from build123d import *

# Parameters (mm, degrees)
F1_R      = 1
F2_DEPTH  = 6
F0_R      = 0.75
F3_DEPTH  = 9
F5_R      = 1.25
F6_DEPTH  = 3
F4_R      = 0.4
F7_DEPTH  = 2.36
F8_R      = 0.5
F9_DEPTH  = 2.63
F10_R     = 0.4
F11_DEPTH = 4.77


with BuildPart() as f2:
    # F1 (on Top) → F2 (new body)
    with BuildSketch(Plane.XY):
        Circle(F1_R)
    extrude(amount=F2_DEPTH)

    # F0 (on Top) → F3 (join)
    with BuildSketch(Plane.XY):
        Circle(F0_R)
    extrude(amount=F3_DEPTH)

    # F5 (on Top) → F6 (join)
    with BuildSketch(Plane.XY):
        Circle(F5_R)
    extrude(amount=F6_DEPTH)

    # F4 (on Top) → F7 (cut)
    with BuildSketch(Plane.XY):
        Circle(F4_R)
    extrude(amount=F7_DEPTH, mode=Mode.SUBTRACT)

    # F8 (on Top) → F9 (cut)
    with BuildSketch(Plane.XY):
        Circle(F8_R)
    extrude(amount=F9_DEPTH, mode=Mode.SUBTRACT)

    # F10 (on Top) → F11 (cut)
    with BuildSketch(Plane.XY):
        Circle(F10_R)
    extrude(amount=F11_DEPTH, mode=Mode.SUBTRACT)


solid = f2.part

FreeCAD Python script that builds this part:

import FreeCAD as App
import Part
import Sketcher

doc = App.newDocument("Part")
params = doc.addObject("Spreadsheet::Sheet", "Params")
for row, (alias, value) in enumerate([
    ("sketch1_diameter", "2 mm"),
    ("pad1_length", "6 mm"),
    ("sketch2_diameter", "1.5 mm"),
    ("pad2_length", "9 mm"),
    ("sketch3_diameter", "2.5 mm"),
    ("pad3_length", "3 mm"),
    ("sketch4_diameter", "0.8 mm"),
    ("pocket1_length", "2.36 mm"),
    ("sketch5_diameter", "1 mm"),
    ("pocket2_length", "2.63 mm"),
    ("sketch6_diameter", "0.8 mm"),
    ("pocket3_length", "4.77 mm"),
], start=1):
    params.set(f"A{row}", alias)
    params.set(f"B{row}", "=" + value)
    params.setAlias(f"B{row}", alias)

body = doc.addObject("PartDesign::Body", "Body")

# Sketch on XY plane
sketch1 = doc.addObject("Sketcher::SketchObject", "Sketch")
body.addObject(sketch1)
sketch1.AttachmentSupport = (doc.XY_Plane, [""])
sketch1.MapMode = "FlatFace"
sketch1.addGeometry(Part.Circle(App.Vector(0, 0, 0), App.Vector(0, 0, 1), 1), False)
sketch1.addConstraint(Sketcher.Constraint("Coincident", 0, 3, -1, 1))
sketch1.addConstraint(Sketcher.Constraint("Diameter", 0, 2.0))
sketch1.setExpression("Constraints[1]", "Params.sketch1_diameter")
pad1 = doc.addObject("PartDesign::Pad", "Pad")
body.addObject(pad1)
pad1.Profile = sketch1
pad1.setExpression("Length", "Params.pad1_length")

# Sketch on XY plane
sketch2 = doc.addObject("Sketcher::SketchObject", "Sketch001")
body.addObject(sketch2)
sketch2.AttachmentSupport = (doc.XY_Plane, [""])
sketch2.MapMode = "FlatFace"
sketch2.addGeometry(Part.Circle(App.Vector(0, 0, 0), App.Vector(0, 0, 1), 0.8), False)
sketch2.addConstraint(Sketcher.Constraint("Coincident", 0, 3, -1, 1))
sketch2.addConstraint(Sketcher.Constraint("Diameter", 0, 1.5))
sketch2.setExpression("Constraints[1]", "Params.sketch2_diameter")
pad2 = doc.addObject("PartDesign::Pad", "Pad001")
body.addObject(pad2)
pad2.Profile = sketch2
pad2.setExpression("Length", "Params.pad2_length")

# Sketch on XY plane
sketch3 = doc.addObject("Sketcher::SketchObject", "Sketch002")
body.addObject(sketch3)
sketch3.AttachmentSupport = (doc.XY_Plane, [""])
sketch3.MapMode = "FlatFace"
sketch3.addGeometry(Part.Circle(App.Vector(0, 0, 0), App.Vector(0, 0, 1), 1.2), False)
sketch3.addConstraint(Sketcher.Constraint("Coincident", 0, 3, -1, 1))
sketch3.addConstraint(Sketcher.Constraint("Diameter", 0, 2.5))
sketch3.setExpression("Constraints[1]", "Params.sketch3_diameter")
pad3 = doc.addObject("PartDesign::Pad", "Pad002")
body.addObject(pad3)
pad3.Profile = sketch3
pad3.setExpression("Length", "Params.pad3_length")

# Sketch on XY plane
sketch4 = doc.addObject("Sketcher::SketchObject", "Sketch003")
body.addObject(sketch4)
sketch4.AttachmentSupport = (doc.XY_Plane, [""])
sketch4.MapMode = "FlatFace"
sketch4.addGeometry(Part.Circle(App.Vector(0, 0, 0), App.Vector(0, 0, 1), 0.4), False)
sketch4.addConstraint(Sketcher.Constraint("Coincident", 0, 3, -1, 1))
sketch4.addConstraint(Sketcher.Constraint("Diameter", 0, 0.8))
sketch4.setExpression("Constraints[1]", "Params.sketch4_diameter")
pocket1 = doc.addObject("PartDesign::Pocket", "Pocket")
body.addObject(pocket1)
pocket1.Profile = sketch4
pocket1.setExpression("Length", "Params.pocket1_length")
pocket1.Reversed = True

# Sketch on XY plane
sketch5 = doc.addObject("Sketcher::SketchObject", "Sketch004")
body.addObject(sketch5)
sketch5.AttachmentSupport = (doc.XY_Plane, [""])
sketch5.MapMode = "FlatFace"
sketch5.addGeometry(Part.Circle(App.Vector(0, 0, 0), App.Vector(0, 0, 1), 0.5), False)
sketch5.addConstraint(Sketcher.Constraint("Coincident", 0, 3, -1, 1))
sketch5.addConstraint(Sketcher.Constraint("Diameter", 0, 1.0))
sketch5.setExpression("Constraints[1]", "Params.sketch5_diameter")
pocket2 = doc.addObject("PartDesign::Pocket", "Pocket001")
body.addObject(pocket2)
pocket2.Profile = sketch5
pocket2.setExpression("Length", "Params.pocket2_length")
pocket2.Reversed = True

# Sketch on XY plane
sketch6 = doc.addObject("Sketcher::SketchObject", "Sketch005")
body.addObject(sketch6)
sketch6.AttachmentSupport = (doc.XY_Plane, [""])
sketch6.MapMode = "FlatFace"
sketch6.addGeometry(Part.Circle(App.Vector(0, 0, 0), App.Vector(0, 0, 1), 0.4), False)
sketch6.addConstraint(Sketcher.Constraint("Coincident", 0, 3, -1, 1))
sketch6.addConstraint(Sketcher.Constraint("Diameter", 0, 0.8))
sketch6.setExpression("Constraints[1]", "Params.sketch6_diameter")
pocket3 = doc.addObject("PartDesign::Pocket", "Pocket002")
body.addObject(pocket3)
pocket3.Profile = sketch6
pocket3.setExpression("Length", "Params.pocket3_length")
pocket3.Reversed = True

doc.recompute()
